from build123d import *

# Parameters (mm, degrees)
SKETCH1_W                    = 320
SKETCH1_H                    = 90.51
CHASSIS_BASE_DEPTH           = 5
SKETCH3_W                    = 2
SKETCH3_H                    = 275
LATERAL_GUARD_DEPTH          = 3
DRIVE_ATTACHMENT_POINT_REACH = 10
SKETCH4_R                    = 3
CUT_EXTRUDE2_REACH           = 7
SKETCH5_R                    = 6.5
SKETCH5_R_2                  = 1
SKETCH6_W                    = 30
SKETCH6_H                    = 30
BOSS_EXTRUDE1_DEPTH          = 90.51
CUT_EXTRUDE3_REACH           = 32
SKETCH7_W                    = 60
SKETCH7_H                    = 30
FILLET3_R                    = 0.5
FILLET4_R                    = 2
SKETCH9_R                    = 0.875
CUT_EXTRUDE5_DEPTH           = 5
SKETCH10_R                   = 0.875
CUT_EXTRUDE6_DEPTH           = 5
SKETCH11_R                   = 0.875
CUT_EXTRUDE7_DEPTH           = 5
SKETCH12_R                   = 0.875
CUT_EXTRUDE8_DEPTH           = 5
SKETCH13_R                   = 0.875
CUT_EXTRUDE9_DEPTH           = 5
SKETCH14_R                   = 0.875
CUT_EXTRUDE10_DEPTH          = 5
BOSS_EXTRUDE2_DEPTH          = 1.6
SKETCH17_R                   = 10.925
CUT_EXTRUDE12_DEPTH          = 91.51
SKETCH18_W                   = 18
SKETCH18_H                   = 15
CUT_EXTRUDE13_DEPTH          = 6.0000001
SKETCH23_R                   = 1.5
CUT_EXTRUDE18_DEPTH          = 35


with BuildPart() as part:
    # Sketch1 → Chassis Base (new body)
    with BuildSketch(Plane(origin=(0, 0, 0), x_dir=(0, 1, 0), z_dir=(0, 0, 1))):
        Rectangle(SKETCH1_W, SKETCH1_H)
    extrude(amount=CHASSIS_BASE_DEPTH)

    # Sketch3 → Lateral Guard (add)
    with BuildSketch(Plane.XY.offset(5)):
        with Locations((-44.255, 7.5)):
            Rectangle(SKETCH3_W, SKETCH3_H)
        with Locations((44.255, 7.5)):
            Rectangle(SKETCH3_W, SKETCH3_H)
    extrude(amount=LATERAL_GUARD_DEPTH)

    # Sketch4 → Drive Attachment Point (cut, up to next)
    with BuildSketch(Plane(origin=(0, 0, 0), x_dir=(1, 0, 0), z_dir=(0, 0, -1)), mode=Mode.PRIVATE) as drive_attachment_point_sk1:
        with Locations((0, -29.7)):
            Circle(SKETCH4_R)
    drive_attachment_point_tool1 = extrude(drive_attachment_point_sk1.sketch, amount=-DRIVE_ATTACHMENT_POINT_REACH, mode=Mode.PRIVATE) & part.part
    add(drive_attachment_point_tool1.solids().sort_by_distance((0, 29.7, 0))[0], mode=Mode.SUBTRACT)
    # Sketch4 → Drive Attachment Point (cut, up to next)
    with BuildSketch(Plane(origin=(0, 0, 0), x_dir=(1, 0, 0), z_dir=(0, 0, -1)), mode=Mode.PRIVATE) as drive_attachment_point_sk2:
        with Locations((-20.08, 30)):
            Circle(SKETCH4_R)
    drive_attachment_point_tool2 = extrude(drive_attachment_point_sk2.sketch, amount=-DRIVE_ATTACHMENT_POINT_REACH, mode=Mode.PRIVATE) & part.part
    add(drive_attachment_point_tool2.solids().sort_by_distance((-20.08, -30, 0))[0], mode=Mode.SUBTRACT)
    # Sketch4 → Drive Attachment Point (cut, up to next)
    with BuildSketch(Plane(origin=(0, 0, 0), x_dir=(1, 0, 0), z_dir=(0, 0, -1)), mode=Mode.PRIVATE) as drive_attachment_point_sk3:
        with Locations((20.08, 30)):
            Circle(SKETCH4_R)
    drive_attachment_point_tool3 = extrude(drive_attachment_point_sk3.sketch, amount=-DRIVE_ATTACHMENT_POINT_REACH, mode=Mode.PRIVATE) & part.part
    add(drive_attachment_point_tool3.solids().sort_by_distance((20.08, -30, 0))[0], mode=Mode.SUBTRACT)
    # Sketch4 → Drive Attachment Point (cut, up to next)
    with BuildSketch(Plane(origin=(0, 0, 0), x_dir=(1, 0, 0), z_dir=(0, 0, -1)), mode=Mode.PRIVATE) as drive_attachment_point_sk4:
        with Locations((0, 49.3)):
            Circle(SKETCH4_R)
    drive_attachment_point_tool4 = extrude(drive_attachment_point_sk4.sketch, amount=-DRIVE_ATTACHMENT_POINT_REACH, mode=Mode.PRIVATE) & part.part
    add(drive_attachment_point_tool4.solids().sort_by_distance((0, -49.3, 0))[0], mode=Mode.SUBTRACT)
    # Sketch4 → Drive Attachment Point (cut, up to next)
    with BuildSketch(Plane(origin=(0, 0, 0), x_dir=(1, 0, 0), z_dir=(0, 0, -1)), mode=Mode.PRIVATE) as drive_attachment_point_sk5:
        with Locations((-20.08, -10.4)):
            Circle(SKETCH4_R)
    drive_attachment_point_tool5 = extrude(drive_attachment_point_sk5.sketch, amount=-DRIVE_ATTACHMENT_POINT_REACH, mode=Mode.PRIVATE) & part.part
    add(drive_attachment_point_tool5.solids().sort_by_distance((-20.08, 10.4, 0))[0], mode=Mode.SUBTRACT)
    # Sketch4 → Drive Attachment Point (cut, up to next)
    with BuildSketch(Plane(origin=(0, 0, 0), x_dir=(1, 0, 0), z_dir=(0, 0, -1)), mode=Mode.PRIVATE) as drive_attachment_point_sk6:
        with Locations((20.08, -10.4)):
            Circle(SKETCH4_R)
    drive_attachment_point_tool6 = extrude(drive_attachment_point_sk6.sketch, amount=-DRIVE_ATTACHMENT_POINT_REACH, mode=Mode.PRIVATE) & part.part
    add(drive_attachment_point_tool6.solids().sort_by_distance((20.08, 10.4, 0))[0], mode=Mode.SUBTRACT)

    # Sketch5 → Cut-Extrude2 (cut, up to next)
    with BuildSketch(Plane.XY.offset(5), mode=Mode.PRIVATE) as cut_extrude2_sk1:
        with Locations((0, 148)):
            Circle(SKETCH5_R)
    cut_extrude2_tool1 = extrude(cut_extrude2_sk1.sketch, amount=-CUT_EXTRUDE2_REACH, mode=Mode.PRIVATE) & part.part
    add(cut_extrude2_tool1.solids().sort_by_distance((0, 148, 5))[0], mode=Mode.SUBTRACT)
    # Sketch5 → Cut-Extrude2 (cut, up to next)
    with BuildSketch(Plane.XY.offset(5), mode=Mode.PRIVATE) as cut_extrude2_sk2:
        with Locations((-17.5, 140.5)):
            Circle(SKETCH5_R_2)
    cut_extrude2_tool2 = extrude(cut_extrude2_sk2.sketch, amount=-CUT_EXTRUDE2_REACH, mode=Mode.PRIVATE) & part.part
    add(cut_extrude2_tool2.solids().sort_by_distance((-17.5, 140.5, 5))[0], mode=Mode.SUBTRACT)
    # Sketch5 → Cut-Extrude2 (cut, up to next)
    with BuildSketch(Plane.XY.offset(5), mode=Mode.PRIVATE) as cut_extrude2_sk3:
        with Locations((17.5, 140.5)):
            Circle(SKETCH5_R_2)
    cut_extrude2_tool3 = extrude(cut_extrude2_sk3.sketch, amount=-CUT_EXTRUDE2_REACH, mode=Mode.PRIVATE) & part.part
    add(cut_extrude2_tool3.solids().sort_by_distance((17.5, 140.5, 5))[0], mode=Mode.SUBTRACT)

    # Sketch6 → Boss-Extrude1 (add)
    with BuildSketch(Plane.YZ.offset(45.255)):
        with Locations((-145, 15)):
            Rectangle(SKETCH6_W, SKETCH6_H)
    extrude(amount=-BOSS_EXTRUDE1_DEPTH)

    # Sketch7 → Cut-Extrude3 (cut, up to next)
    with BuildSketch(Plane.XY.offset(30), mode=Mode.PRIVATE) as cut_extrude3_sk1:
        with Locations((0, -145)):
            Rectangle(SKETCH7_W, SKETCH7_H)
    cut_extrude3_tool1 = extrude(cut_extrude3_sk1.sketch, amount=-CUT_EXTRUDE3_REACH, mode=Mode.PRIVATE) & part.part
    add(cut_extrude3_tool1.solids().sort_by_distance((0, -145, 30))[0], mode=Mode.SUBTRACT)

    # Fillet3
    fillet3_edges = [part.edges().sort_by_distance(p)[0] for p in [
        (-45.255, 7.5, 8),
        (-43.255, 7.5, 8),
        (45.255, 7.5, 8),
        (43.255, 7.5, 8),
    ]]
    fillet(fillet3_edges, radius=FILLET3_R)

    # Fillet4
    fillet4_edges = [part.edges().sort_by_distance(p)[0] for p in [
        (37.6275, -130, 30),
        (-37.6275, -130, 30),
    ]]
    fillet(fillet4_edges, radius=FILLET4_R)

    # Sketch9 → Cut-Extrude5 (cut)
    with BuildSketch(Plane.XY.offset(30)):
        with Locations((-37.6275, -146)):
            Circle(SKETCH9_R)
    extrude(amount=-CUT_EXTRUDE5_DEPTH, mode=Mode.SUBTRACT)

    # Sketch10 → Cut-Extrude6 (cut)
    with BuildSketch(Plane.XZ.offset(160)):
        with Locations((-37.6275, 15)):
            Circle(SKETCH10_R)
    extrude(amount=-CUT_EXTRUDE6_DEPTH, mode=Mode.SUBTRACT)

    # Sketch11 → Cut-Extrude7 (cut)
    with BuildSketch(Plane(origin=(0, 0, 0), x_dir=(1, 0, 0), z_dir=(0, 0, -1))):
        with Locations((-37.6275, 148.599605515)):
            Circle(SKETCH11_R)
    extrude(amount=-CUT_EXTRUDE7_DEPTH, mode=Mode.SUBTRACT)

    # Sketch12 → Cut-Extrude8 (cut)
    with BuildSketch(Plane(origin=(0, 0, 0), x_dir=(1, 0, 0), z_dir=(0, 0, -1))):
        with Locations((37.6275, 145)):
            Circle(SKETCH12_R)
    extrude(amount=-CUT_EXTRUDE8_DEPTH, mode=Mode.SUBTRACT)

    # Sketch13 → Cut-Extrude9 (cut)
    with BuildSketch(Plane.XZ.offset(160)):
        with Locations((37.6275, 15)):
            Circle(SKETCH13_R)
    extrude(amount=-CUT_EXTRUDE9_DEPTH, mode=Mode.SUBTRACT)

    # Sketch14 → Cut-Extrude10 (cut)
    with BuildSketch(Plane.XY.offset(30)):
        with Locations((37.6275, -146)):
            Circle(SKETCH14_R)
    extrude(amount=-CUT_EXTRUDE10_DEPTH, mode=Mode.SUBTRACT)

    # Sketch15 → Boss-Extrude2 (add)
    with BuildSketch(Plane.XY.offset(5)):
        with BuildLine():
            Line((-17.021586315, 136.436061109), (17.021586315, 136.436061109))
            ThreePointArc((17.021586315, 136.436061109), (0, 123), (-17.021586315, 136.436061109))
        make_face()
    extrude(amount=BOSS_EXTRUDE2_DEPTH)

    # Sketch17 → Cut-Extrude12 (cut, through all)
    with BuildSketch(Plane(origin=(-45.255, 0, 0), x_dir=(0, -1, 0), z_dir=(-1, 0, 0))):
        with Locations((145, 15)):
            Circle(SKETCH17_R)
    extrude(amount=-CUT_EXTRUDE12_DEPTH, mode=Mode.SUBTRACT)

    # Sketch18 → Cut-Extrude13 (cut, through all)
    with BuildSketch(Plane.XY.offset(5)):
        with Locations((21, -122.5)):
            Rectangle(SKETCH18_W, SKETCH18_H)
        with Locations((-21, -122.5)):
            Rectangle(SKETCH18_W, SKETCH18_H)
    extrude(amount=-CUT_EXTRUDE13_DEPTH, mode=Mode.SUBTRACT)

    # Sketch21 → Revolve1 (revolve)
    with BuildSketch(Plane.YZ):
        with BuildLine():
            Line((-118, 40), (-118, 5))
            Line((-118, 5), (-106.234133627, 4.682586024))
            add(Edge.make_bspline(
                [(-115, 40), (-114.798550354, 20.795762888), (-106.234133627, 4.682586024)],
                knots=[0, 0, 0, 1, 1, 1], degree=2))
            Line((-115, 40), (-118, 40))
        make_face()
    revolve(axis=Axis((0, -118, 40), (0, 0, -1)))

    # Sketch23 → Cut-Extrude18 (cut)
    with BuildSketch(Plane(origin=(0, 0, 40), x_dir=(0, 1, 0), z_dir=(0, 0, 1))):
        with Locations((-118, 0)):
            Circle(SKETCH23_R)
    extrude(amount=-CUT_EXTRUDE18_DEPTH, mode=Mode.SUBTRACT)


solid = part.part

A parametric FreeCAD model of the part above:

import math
import FreeCAD as App
import Part
import Sketcher
Q = App.Units.Quantity


def edges_at(feature, points):
    """Names of the edges that pass closest to the given points."""
    edges = feature.Shape.Edges
    near = lambda p: min(range(len(edges)), key=lambda i: edges[i].distToShape(Part.Vertex(*p))[0])
    return sorted({f"Edge{near(p) + 1}" for p in points})

doc = App.newDocument("Part")
body = doc.addObject("PartDesign::Body", "Body")

sketch1 = body.newObject("Sketcher::SketchObject", "Sketch")
sketch1.AttachmentSupport = (doc.getObject("XY_Plane"), [""])
sketch1.MapMode = "FlatFace"
sketch1.addGeometry([
    Part.LineSegment(App.Vector(-45, -160, 0), App.Vector(45, -160, 0)),
    Part.LineSegment(App.Vector(45, -160, 0), App.Vector(45, 160, 0)),
    Part.LineSegment(App.Vector(45, 160, 0), App.Vector(-45, 160, 0)),
    Part.LineSegment(App.Vector(-45, 160, 0), App.Vector(-45, -160, 0)),
], False)
sketch1.addConstraint([
    Sketcher.Constraint("Coincident", 0, 2, 1, 1),
    Sketcher.Constraint("Coincident", 1, 2, 2, 1),
    Sketcher.Constraint("Coincident", 2, 2, 3, 1),
    Sketcher.Constraint("Coincident", 3, 2, 0, 1),
    Sketcher.Constraint("Horizontal", 0),
    Sketcher.Constraint("Vertical", 1),
    Sketcher.Constraint("Horizontal", 2),
    Sketcher.Constraint("Vertical", 3),
    Sketcher.Constraint("Symmetric", 0, 2, 2, 2, -1, 1),
    Sketcher.Constraint("DistanceY", 1, 1, 1, 2, Q("320 mm")),
    Sketcher.Constraint("DistanceX", 0, 1, 0, 2, Q("90.51 mm")),
])
pad1 = body.newObject("PartDesign::Pad", "Pad")
pad1.Profile = sketch1
pad1.Length = 5

sketch2 = body.newObject("Sketcher::SketchObject", "Sketch001")
sketch2.AttachmentSupport = (doc.getObject("XY_Plane"), [""])
sketch2.MapMode = "FlatFace"
sketch2.AttachmentOffset = App.Placement(App.Vector(0, 0, 5), App.Rotation())
sketch2.addGeometry([
    Part.LineSegment(App.Vector(-45.3, 145, 0), App.Vector(-45.3, -130, 0)),
    Part.LineSegment(App.Vector(-45.3, -130, 0), App.Vector(-43.3, -130, 0)),
    Part.LineSegment(App.Vector(-43.3, -130, 0), App.Vector(-43.3, 145, 0)),
    Part.LineSegment(App.Vector(-43.3, 145, 0), App.Vector(-45.3, 145, 0)),
    Part.LineSegment(App.Vector(43.3, 145, 0), App.Vector(43.3, -130, 0)),
    Part.LineSegment(App.Vector(43.3, -130, 0), App.Vector(45.3, -130, 0)),
    Part.LineSegment(App.Vector(45.3, -130, 0), App.Vector(45.3, 145, 0)),
    Part.LineSegment(App.Vector(45.3, 145, 0), App.Vector(43.3, 145, 0)),
], False)
sketch2.addConstraint([
    Sketcher.Constraint("Coincident", 0, 2, 1, 1),
    Sketcher.Constraint("Coincident", 1, 2, 2, 1),
    Sketcher.Constraint("Coincident", 2, 2, 3, 1),
    Sketcher.Constraint("Coincident", 3, 2, 0, 1),
    Sketcher.Constraint("Coincident", 4, 2, 5, 1),
    Sketcher.Constraint("Coincident", 5, 2, 6, 1),
    Sketcher.Constraint("Coincident", 6, 2, 7, 1),
    Sketcher.Constraint("Coincident", 7, 2, 4, 1),
    Sketcher.Constraint("Vertical", 0),
    Sketcher.Constraint("Horizontal", 1),
    Sketcher.Constraint("Vertical", 2),
    Sketcher.Constraint("Horizontal", 3),
    Sketcher.Constraint("Vertical", 4),
    Sketcher.Constraint("Horizontal", 5),
    Sketcher.Constraint("Vertical", 6),
    Sketcher.Constraint("Horizontal", 7),
    Sketcher.Constraint("Symmetric", 1, 2, 4, 2, -2),
    Sketcher.Constraint("Symmetric", 3, 2, 6, 2, -2),
    Sketcher.Constraint("DistanceX", 1, 1, 1, 2, Q("2 mm")),
    Sketcher.Constraint("DistanceY", 0, 2, 0, 1, Q("275 mm")),
    Sketcher.Constraint("DistanceY", 0, 2, -1, 1, Q("130 mm")),
    Sketcher.Constraint("DistanceX", 1, 2, 4, 2, Q("86.51 mm")),
])
pad2 = body.newObject("PartDesign::Pad", "Pad001")
pad2.Profile = sketch2
pad2.Length = 3

sketch3 = body.newObject("Sketcher::SketchObject", "Sketch002")
sketch3.AttachmentSupport = (doc.getObject("XY_Plane"), [""])
sketch3.MapMode = "FlatFace"
sketch3.addGeometry(Part.Circle(App.Vector(0, 29.7, 0), App.Vector(0, 0, 1), 3), False)
sketch3.addConstraint([
    Sketcher.Constraint("PointOnObject", 0, 3, -2),
    Sketcher.Constraint("Diameter", 0, Q("6 mm")),
    Sketcher.Constraint("DistanceY", -1, 1, 0, 3, Q("29.7 mm")),
])
pocket1 = body.newObject("PartDesign::Pocket", "Pocket")
pocket1.Profile = sketch3
pocket1.Type = "UpToFirst"
pocket1.Reversed = True

sketch4 = body.newObject("Sketcher::SketchObject", "Sketch003")
sketch4.AttachmentSupport = (doc.getObject("XY_Plane"), [""])
sketch4.MapMode = "FlatFace"
sketch4.addGeometry(Part.Circle(App.Vector(-20.1, -30, 0), App.Vector(0, 0, 1), 3), False)
sketch4.addConstraint([
    Sketcher.Constraint("Diameter", 0, Q("6 mm")),
    Sketcher.Constraint("DistanceY", 0, 3, -1, 1, Q("30 mm")),
    Sketcher.Constraint("DistanceX", 0, 3, -1, 1, Q("20.08 mm")),
])
pocket2 = body.newObject("PartDesign::Pocket", "Pocket001")
pocket2.Profile = sketch4
pocket2.Type = "UpToFirst"
pocket2.Reversed = True

sketch5 = body.newObject("Sketcher::SketchObject", "Sketch004")
sketch5.AttachmentSupport = (doc.getObject("XY_Plane"), [""])
sketch5.MapMode = "FlatFace"
sketch5.addGeometry(Part.Circle(App.Vector(20.1, -30, 0), App.Vector(0, 0, 1), 3), False)
sketch5.addConstraint([
    Sketcher.Constraint("Diameter", 0, Q("6 mm")),
    Sketcher.Constraint("DistanceY", 0, 3, -1, 1, Q("30 mm")),
    Sketcher.Constraint("DistanceX", -1, 1, 0, 3, Q("20.08 mm")),
])
pocket3 = body.newObject("PartDesign::Pocket", "Pocket002")
pocket3.Profile = sketch5
pocket3.Type = "UpToFirst"
pocket3.Reversed = True

sketch6 = body.newObject("Sketcher::SketchObject", "Sketch005")
sketch6.AttachmentSupport = (doc.getObject("XY_Plane"), [""])
sketch6.MapMode = "FlatFace"
sketch6.addGeometry(Part.Circle(App.Vector(0, -49.3, 0), App.Vector(0, 0, 1), 3), False)
sketch6.addConstraint([
    Sketcher.Constraint("PointOnObject", 0, 3, -2),
    Sketcher.Constraint("Diameter", 0, Q("6 mm")),
    Sketcher.Constraint("DistanceY", 0, 3, -1, 1, Q("49.3 mm")),
])
pocket4 = body.newObject("PartDesign::Pocket", "Pocket003")
pocket4.Profile = sketch6
pocket4.Type = "UpToFirst"
pocket4.Reversed = True

sketch7 = body.newObject("Sketcher::SketchObject", "Sketch006")
sketch7.AttachmentSupport = (doc.getObject("XY_Plane"), [""])
sketch7.MapMode = "FlatFace"
sketch7.addGeometry(Part.Circle(App.Vector(-20.1, 10.4, 0), App.Vector(0, 0, 1), 3), False)
sketch7.addConstraint([
    Sketcher.Constraint("Diameter", 0, Q("6 mm")),
    Sketcher.Constraint("DistanceY", -1, 1, 0, 3, Q("10.4 mm")),
    Sketcher.Constraint("DistanceX", 0, 3, -1, 1, Q("20.08 mm")),
])
pocket5 = body.newObject("PartDesign::Pocket", "Pocket004")
pocket5.Profile = sketch7
pocket5.Type = "UpToFirst"
pocket5.Reversed = True

sketch8 = body.newObject("Sketcher::SketchObject", "Sketch007")
sketch8.AttachmentSupport = (doc.getObject("XY_Plane"), [""])
sketch8.MapMode = "FlatFace"
sketch8.addGeometry(Part.Circle(App.Vector(20.1, 10.4, 0), App.Vector(0, 0, 1), 3), False)
sketch8.addConstraint([
    Sketcher.Constraint("Diameter", 0, Q("6 mm")),
    Sketcher.Constraint("DistanceY", -1, 1, 0, 3, Q("10.4 mm")),
    Sketcher.Constraint("DistanceX", -1, 1, 0, 3, Q("20.08 mm")),
])
pocket6 = body.newObject("PartDesign::Pocket", "Pocket005")
pocket6.Profile = sketch8
pocket6.Type = "UpToFirst"
pocket6.Reversed = True

sketch9 = body.newObject("Sketcher::SketchObject", "Sketch008")
sketch9.AttachmentSupport = (doc.getObject("XY_Plane"), [""])
sketch9.MapMode = "FlatFace"
sketch9.AttachmentOffset = App.Placement(App.Vector(0, 0, 5), App.Rotation())
sketch9.addGeometry(Part.Circle(App.Vector(0, 148, 0), App.Vector(0, 0, 1), 6), False)
sketch9.addConstraint([
    Sketcher.Constraint("PointOnObject", 0, 3, -2),
    Sketcher.Constraint("Diameter", 0, Q("13 mm")),
    Sketcher.Constraint("DistanceY", -1, 1, 0, 3, Q("148 mm")),
])
pocket7 = body.newObject("PartDesign::Pocket", "Pocket006")
pocket7.Profile = sketch9
pocket7.Type = "UpToFirst"

sketch10 = body.newObject("Sketcher::SketchObject", "Sketch009")
sketch10.AttachmentSupport = (doc.getObject("XY_Plane"), [""])
sketch10.MapMode = "FlatFace"
sketch10.AttachmentOffset = App.Placement(App.Vector(0, 0, 5), App.Rotation())
sketch10.addGeometry(Part.Circle(App.Vector(-17.5, 140.5, 0), App.Vector(0, 0, 1), 1), False)
sketch10.addConstraint([
    Sketcher.Constraint("Diameter", 0, Q("2 mm")),
    Sketcher.Constraint("DistanceX", 0, 3, -1, 1, Q("17.5 mm")),
    Sketcher.Constraint("DistanceY", -1, 1, 0, 3, Q("140.5 mm")),
])
pocket8 = body.newObject("PartDesign::Pocket", "Pocket007")
pocket8.Profile = sketch10
pocket8.Type = "UpToFirst"

sketch11 = body.newObject("Sketcher::SketchObject", "Sketch010")
sketch11.AttachmentSupport = (doc.getObject("XY_Plane"), [""])
sketch11.MapMode = "FlatFace"
sketch11.AttachmentOffset = App.Placement(App.Vector(0, 0, 5), App.Rotation())
sketch11.addGeometry(Part.Circle(App.Vector(17.5, 140.5, 0), App.Vector(0, 0, 1), 1), False)
sketch11.addConstraint([
    Sketcher.Constraint("Diameter", 0, Q("2 mm")),
    Sketcher.Constraint("DistanceX", -1, 1, 0, 3, Q("17.5 mm")),
    Sketcher.Constraint("DistanceY", -1, 1, 0, 3, Q("140.5 mm")),
])
pocket9 = body.newObject("PartDesign::Pocket", "Pocket008")
pocket9.Profile = sketch11
pocket9.Type = "UpToFirst"

sketch12 = body.newObject("Sketcher::SketchObject", "Sketch011")
sketch12.AttachmentSupport = (doc.getObject("YZ_Plane"), [""])
sketch12.MapMode = "FlatFace"
sketch12.AttachmentOffset = App.Placement(App.Vector(0, 0, 45.255), App.Rotation())
sketch12.addGeometry([
    Part.LineSegment(App.Vector(-160, 30, 0), App.Vector(-160, 0, 0)),
    Part.LineSegment(App.Vector(-160, 0, 0), App.Vector(-130, 0, 0)),
    Part.LineSegment(App.Vector(-130, 0, 0), App.Vector(-130, 30, 0)),
    Part.LineSegment(App.Vector(-130, 30, 0), App.Vector(-160, 30, 0)),
], False)
sketch12.addConstraint([
    Sketcher.Constraint("Coincident", 0, 2, 1, 1),
    Sketcher.Constraint("Coincident", 1, 2, 2, 1),
    Sketcher.Constraint("Coincident", 2, 2, 3, 1),
    Sketcher.Constraint("Coincident", 3, 2, 0, 1),
    Sketcher.Constraint("Vertical", 0),
    Sketcher.Constraint("Horizontal", 1),
    Sketcher.Constraint("Vertical", 2),
    Sketcher.Constraint("Horizontal", 3),
    Sketcher.Constraint("PointOnObject", 0, 2, -1),
    Sketcher.Constraint("Equal", 3, 0),
    Sketcher.Constraint("DistanceX", 1, 1, 1, 2, Q("30 mm")),
    Sketcher.Constraint("DistanceX", 0, 2, -1, 1, Q("160 mm")),
])
pad3 = body.newObject("PartDesign::Pad", "Pad002")
pad3.Profile = sketch12
pad3.Length = 90.51
pad3.Reversed = True

sketch13 = body.newObject("Sketcher::SketchObject", "Sketch012")
sketch13.AttachmentSupport = (doc.getObject("XY_Plane"), [""])
sketch13.MapMode = "FlatFace"
sketch13.AttachmentOffset = App.Placement(App.Vector(0, 0, 30), App.Rotation())
sketch13.addGeometry([
    Part.LineSegment(App.Vector(-30, -130, 0), App.Vector(-30, -160, 0)),
    Part.LineSegment(App.Vector(-30, -160, 0), App.Vector(30, -160, 0)),
    Part.LineSegment(App.Vector(30, -160, 0), App.Vector(30, -130, 0)),
    Part.LineSegment(App.Vector(30, -130, 0), App.Vector(-30, -130, 0)),
], False)
sketch13.addConstraint([
    Sketcher.Constraint("Coincident", 0, 2, 1, 1),
    Sketcher.Constraint("Coincident", 1, 2, 2, 1),
    Sketcher.Constraint("Coincident", 2, 2, 3, 1),
    Sketcher.Constraint("Coincident", 3, 2, 0, 1),
    Sketcher.Constraint("Vertical", 0),
    Sketcher.Constraint("Horizontal", 1),
    Sketcher.Constraint("Vertical", 2),
    Sketcher.Constraint("Horizontal", 3),
    Sketcher.Constraint("DistanceX", 1, 1, 1, 2, Q("60 mm")),
    Sketcher.Constraint("DistanceY", 0, 2, 0, 1, Q("30 mm")),
    Sketcher.Constraint("DistanceX", 0, 2, -1, 1, Q("30 mm")),
    Sketcher.Constraint("DistanceY", 0, 2, -1, 1, Q("160 mm")),
])
pocket10 = body.newObject("PartDesign::Pocket", "Pocket009")
pocket10.Profile = sketch13
pocket10.Type = "UpToFirst"
doc.recompute()

fillet = body.newObject("PartDesign::Fillet", "Fillet")
fillet.Base = (pocket10, edges_at(pocket10, [
    (-45.255, 7.5, 8),
    (-43.255, 7.5, 8),
    (45.255, 7.5, 8),
    (43.255, 7.5, 8),
]))
fillet.Radius = 0.5
doc.recompute()

fillet2 = body.newObject("PartDesign::Fillet", "Fillet001")
fillet2.Base = (fillet, edges_at(fillet, [(37.627, -130, 30), (-37.627, -130, 30)]))
fillet2.Radius = 2

sketch14 = body.newObject("Sketcher::SketchObject", "Sketch013")
sketch14.AttachmentSupport = (doc.getObject("XY_Plane"), [""])
sketch14.MapMode = "FlatFace"
sketch14.AttachmentOffset = App.Placement(App.Vector(0, 0, 30), App.Rotation())
sketch14.addGeometry(Part.Circle(App.Vector(-37.6, -146, 0), App.Vector(0, 0, 1), 0.9), False)
sketch14.addConstraint([
    Sketcher.Constraint("Diameter", 0, Q("1.75 mm")),
    Sketcher.Constraint("DistanceY", 0, 3, -1, 1, Q("146 mm")),
    Sketcher.Constraint("DistanceX", 0, 3, -1, 1, Q("37.6275 mm")),
])
pocket11 = body.newObject("PartDesign::Pocket", "Pocket010")
pocket11.Profile = sketch14
pocket11.Length = 5

sketch15 = body.newObject("Sketcher::SketchObject", "Sketch014")
sketch15.AttachmentSupport = (doc.getObject("XZ_Plane"), [""])
sketch15.MapMode = "FlatFace"
sketch15.AttachmentOffset = App.Placement(App.Vector(0, 0, 160), App.Rotation())
sketch15.addGeometry(Part.Circle(App.Vector(-37.6, 15, 0), App.Vector(0, 0, 1), 0.9), False)
sketch15.addConstraint([
    Sketcher.Constraint("Diameter", 0, Q("1.75 mm")),
    Sketcher.Constraint("DistanceY", -1, 1, 0, 3, Q("15 mm")),
    Sketcher.Constraint("DistanceX", 0, 3, -1, 1, Q("37.6275 mm")),
])
pocket12 = body.newObject("PartDesign::Pocket", "Pocket011")
pocket12.Profile = sketch15
pocket12.Length = 5

sketch16 = body.newObject("Sketcher::SketchObject", "Sketch015")
sketch16.AttachmentSupport = (doc.getObject("XY_Plane"), [""])
sketch16.MapMode = "FlatFace"
sketch16.addGeometry(Part.Circle(App.Vector(-37.6, -148.6, 0), App.Vector(0, 0, 1), 0.9), False)
sketch16.addConstraint([
    Sketcher.Constraint("Diameter", 0, Q("1.75 mm")),
    Sketcher.Constraint("DistanceX", 0, 3, -1, 1, Q("37.6275 mm")),
    Sketcher.Constraint("DistanceY", 0, 3, -1, 1, Q("148.599606 mm")),
])
pocket13 = body.newObject("PartDesign::Pocket", "Pocket012")
pocket13.Profile = sketch16
pocket13.Length = 5
pocket13.Reversed = True

sketch17 = body.newObject("Sketcher::SketchObject", "Sketch016")
sketch17.AttachmentSupport = (doc.getObject("XY_Plane"), [""])
sketch17.MapMode = "FlatFace"
sketch17.addGeometry(Part.Circle(App.Vector(37.6, -145, 0), App.Vector(0, 0, 1), 0.9), False)
sketch17.addConstraint([
    Sketcher.Constraint("Diameter", 0, Q("1.75 mm")),
    Sketcher.Constraint("DistanceY", 0, 3, -1, 1, Q("145 mm")),
    Sketcher.Constraint("DistanceX", -1, 1, 0, 3, Q("37.6275 mm")),
])
pocket14 = body.newObject("PartDesign::Pocket", "Pocket013")
pocket14.Profile = sketch17
pocket14.Length = 5
pocket14.Reversed = True

sketch18 = body.newObject("Sketcher::SketchObject", "Sketch017")
sketch18.AttachmentSupport = (doc.getObject("XZ_Plane"), [""])
sketch18.MapMode = "FlatFace"
sketch18.AttachmentOffset = App.Placement(App.Vector(0, 0, 160), App.Rotation())
sketch18.addGeometry(Part.Circle(App.Vector(37.6, 15, 0), App.Vector(0, 0, 1), 0.9), False)
sketch18.addConstraint([
    Sketcher.Constraint("Diameter", 0, Q("1.75 mm")),
    Sketcher.Constraint("DistanceY", -1, 1, 0, 3, Q("15 mm")),
    Sketcher.Constraint("DistanceX", -1, 1, 0, 3, Q("37.6275 mm")),
])
pocket15 = body.newObject("PartDesign::Pocket", "Pocket014")
pocket15.Profile = sketch18
pocket15.Length = 5

sketch19 = body.newObject("Sketcher::SketchObject", "Sketch018")
sketch19.AttachmentSupport = (doc.getObject("XY_Plane"), [""])
sketch19.MapMode = "FlatFace"
sketch19.AttachmentOffset = App.Placement(App.Vector(0, 0, 30), App.Rotation())
sketch19.addGeometry(Part.Circle(App.Vector(37.6, -146, 0), App.Vector(0, 0, 1), 0.9), False)
sketch19.addConstraint([
    Sketcher.Constraint("Diameter", 0, Q("1.75 mm")),
    Sketcher.Constraint("DistanceY", 0, 3, -1, 1, Q("146 mm")),
    Sketcher.Constraint("DistanceX", -1, 1, 0, 3, Q("37.6275 mm")),
])
pocket16 = body.newObject("PartDesign::Pocket", "Pocket015")
pocket16.Profile = sketch19
pocket16.Length = 5

sketch20 = body.newObject("Sketcher::SketchObject", "Sketch019")
sketch20.AttachmentSupport = (doc.getObject("XY_Plane"), [""])
sketch20.MapMode = "FlatFace"
sketch20.AttachmentOffset = App.Placement(App.Vector(0, 0, 5), App.Rotation())
sketch20.addGeometry([
    Part.LineSegment(App.Vector(17, 136, 0), App.Vector(-17, 136, 0)),
    Part.ArcOfCircle(Part.Circle(App.Vector(0, 140, 0), App.Vector(0, 0, 1), 18), math.radians(-167), math.radians(-13)),
], False)
sketch20.addConstraint([
    Sketcher.Constraint("Coincident", 0, 1, 1, 2),
    Sketcher.Constraint("Coincident", 1, 1, 0, 2),
    Sketcher.Constraint("Horizontal", 0),
    Sketcher.Constraint("PointOnObject", 1, 3, -2),
    Sketcher.Constraint("Radius", 1, Q("17.5 mm")),
    Sketcher.Constraint("DistanceY", -1, 1, 1, 3, Q("140.5 mm")),
    Sketcher.Constraint("DistanceX", 0, 2, 0, 1, Q("34.043173 mm")),
])
pad4 = body.newObject("PartDesign::Pad", "Pad003")
pad4.Profile = sketch20
pad4.Length = 1.6

sketch21 = body.newObject("Sketcher::SketchObject", "Sketch020")
sketch21.AttachmentSupport = (doc.getObject("YZ_Plane"), [""])
sketch21.MapMode = "FlatFace"
sketch21.AttachmentOffset = App.Placement(App.Vector(0, 0, -45.255), App.Rotation())
sketch21.addGeometry(Part.Circle(App.Vector(-145, 15, 0), App.Vector(0, 0, 1), 11), False)
sketch21.addConstraint([
    Sketcher.Constraint("Diameter", 0, Q("21.85 mm")),
    Sketcher.Constraint("DistanceX", 0, 3, -1, 1, Q("145 mm")),
    Sketcher.Constraint("DistanceY", -1, 1, 0, 3, Q("15 mm")),
])
pocket17 = body.newObject("PartDesign::Pocket", "Pocket016")
pocket17.Profile = sketch21
pocket17.Type = "ThroughAll"
pocket17.Reversed = True

sketch22 = body.newObject("Sketcher::SketchObject", "Sketch021")
sketch22.AttachmentSupport = (doc.getObject("XY_Plane"), [""])
sketch22.MapMode = "FlatFace"
sketch22.AttachmentOffset = App.Placement(App.Vector(0, 0, 5), App.Rotation())
sketch22.addGeometry([
    Part.LineSegment(App.Vector(12, -115, 0), App.Vector(12, -130, 0)),
    Part.LineSegment(App.Vector(12, -130, 0), App.Vector(30, -130, 0)),
    Part.LineSegment(App.Vector(30, -130, 0), App.Vector(30, -115, 0)),
    Part.LineSegment(App.Vector(30, -115, 0), App.Vector(12, -115, 0)),
    Part.LineSegment(App.Vector(-30, -115, 0), App.Vector(-30, -130, 0)),
    Part.LineSegment(App.Vector(-30, -130, 0), App.Vector(-12, -130, 0)),
    Part.LineSegment(App.Vector(-12, -130, 0), App.Vector(-12, -115, 0)),
    Part.LineSegment(App.Vector(-12, -115, 0), App.Vector(-30, -115, 0)),
], False)
sketch22.addConstraint([
    Sketcher.Constraint("Coincident", 0, 2, 1, 1),
    Sketcher.Constraint("Coincident", 1, 2, 2, 1),
    Sketcher.Constraint("Coincident", 2, 2, 3, 1),
    Sketcher.Constraint("Coincident", 3, 2, 0, 1),
    Sketcher.Constraint("Coincident", 4, 2, 5, 1),
    Sketcher.Constraint("Coincident", 5, 2, 6, 1),
    Sketcher.Constraint("Coincident", 6, 2, 7, 1),
    Sketcher.Constraint("Coincident", 7, 2, 4, 1),
    Sketcher.Constraint("Vertical", 0),
    Sketcher.Constraint("Horizontal", 1),
    Sketcher.Constraint("Vertical", 2),
    Sketcher.Constraint("Horizontal", 3),
    Sketcher.Constraint("Vertical", 4),
    Sketcher.Constraint("Horizontal", 5),
    Sketcher.Constraint("Vertical", 6),
    Sketcher.Constraint("Horizontal", 7),
    Sketcher.Constraint("Symmetric", 1, 2, 4, 2, -2),
    Sketcher.Constraint("Symmetric", 3, 2, 6, 2, -2),
    Sketcher.Constraint("DistanceX", 1, 1, 1, 2, Q("18 mm")),
    Sketcher.Constraint("DistanceY", 0, 2, 0, 1, Q("15 mm")),
    Sketcher.Constraint("DistanceX", -1, 1, 0, 2, Q("12 mm")),
    Sketcher.Constraint("DistanceY", 0, 2, -1, 1, Q("130 mm")),
])
pocket18 = body.newObject("PartDesign::Pocket", "Pocket017")
pocket18.Profile = sketch22
pocket18.Type = "ThroughAll"

sketch23 = body.newObject("Sketcher::SketchObject", "Sketch022")
sketch23.AttachmentSupport = (doc.getObject("YZ_Plane"), [""])
sketch23.MapMode = "FlatFace"
sketch23.addGeometry([
    Part.LineSegment(App.Vector(-118, 40, 0), App.Vector(-118, 5, 0)),
    Part.LineSegment(App.Vector(-118, 5, 0), App.Vector(-106.234134, 4.682586, 0)),
    Part.BSplineCurve([App.Vector(-115, 40, 0), App.Vector(-114.79855, 20.795763, 0), App.Vector(-106.234134, 4.682586, 0)], [3, 3], [0, 1], False, 2, [1, 1, 1], False),
    Part.LineSegment(App.Vector(-115, 40, 0), App.Vector(-118, 40, 0)),
], False)
sketch23.addGeometry(Part.LineSegment(App.Vector(-118, 40, 0), App.Vector(-118, 4.682586, 0)), True)
sketch23.addConstraint([
    Sketcher.Constraint("Block", 2),
    Sketcher.Constraint("Coincident", 0, 2, 1, 1),
    Sketcher.Constraint("Coincident", 1, 2, 2, 2),
    Sketcher.Constraint("Coincident", 2, 1, 3, 1),
    Sketcher.Constraint("Coincident", 3, 2, 0, 1),
    Sketcher.Constraint("Vertical", 0),
    Sketcher.Constraint("Horizontal", 3),
    Sketcher.Constraint("Vertical", 4),
    Sketcher.Constraint("Coincident", 4, 1, 3, 2),
    Sketcher.Constraint("Horizontal", 1, 2, 4, 2),
    Sketcher.Constraint("DistanceX", 3, 2, 3, 1, Q("3 mm")),
    Sketcher.Constraint("DistanceY", 0, 2, 0, 1, Q("35 mm")),
])
revolution = body.newObject("PartDesign::Revolution", "Revolution")
revolution.Profile = sketch23
revolution.ReferenceAxis = (sketch23, ["Axis0"])
revolution.Angle = 360

sketch24 = body.newObject("Sketcher::SketchObject", "Sketch023")
sketch24.AttachmentSupport = (doc.getObject("XY_Plane"), [""])
sketch24.MapMode = "FlatFace"
sketch24.AttachmentOffset = App.Placement(App.Vector(0, 0, 40), App.Rotation())
sketch24.addGeometry(Part.Circle(App.Vector(0, -118, 0), App.Vector(0, 0, 1), 1.5), False)
sketch24.addConstraint([
    Sketcher.Constraint("PointOnObject", 0, 3, -2),
    Sketcher.Constraint("Diameter", 0, Q("3 mm")),
    Sketcher.Constraint("DistanceY", 0, 3, -1, 1, Q("118 mm")),
])
pocket19 = body.newObject("PartDesign::Pocket", "Pocket018")
pocket19.Profile = sketch24
pocket19.Length = 35

doc.recompute()
